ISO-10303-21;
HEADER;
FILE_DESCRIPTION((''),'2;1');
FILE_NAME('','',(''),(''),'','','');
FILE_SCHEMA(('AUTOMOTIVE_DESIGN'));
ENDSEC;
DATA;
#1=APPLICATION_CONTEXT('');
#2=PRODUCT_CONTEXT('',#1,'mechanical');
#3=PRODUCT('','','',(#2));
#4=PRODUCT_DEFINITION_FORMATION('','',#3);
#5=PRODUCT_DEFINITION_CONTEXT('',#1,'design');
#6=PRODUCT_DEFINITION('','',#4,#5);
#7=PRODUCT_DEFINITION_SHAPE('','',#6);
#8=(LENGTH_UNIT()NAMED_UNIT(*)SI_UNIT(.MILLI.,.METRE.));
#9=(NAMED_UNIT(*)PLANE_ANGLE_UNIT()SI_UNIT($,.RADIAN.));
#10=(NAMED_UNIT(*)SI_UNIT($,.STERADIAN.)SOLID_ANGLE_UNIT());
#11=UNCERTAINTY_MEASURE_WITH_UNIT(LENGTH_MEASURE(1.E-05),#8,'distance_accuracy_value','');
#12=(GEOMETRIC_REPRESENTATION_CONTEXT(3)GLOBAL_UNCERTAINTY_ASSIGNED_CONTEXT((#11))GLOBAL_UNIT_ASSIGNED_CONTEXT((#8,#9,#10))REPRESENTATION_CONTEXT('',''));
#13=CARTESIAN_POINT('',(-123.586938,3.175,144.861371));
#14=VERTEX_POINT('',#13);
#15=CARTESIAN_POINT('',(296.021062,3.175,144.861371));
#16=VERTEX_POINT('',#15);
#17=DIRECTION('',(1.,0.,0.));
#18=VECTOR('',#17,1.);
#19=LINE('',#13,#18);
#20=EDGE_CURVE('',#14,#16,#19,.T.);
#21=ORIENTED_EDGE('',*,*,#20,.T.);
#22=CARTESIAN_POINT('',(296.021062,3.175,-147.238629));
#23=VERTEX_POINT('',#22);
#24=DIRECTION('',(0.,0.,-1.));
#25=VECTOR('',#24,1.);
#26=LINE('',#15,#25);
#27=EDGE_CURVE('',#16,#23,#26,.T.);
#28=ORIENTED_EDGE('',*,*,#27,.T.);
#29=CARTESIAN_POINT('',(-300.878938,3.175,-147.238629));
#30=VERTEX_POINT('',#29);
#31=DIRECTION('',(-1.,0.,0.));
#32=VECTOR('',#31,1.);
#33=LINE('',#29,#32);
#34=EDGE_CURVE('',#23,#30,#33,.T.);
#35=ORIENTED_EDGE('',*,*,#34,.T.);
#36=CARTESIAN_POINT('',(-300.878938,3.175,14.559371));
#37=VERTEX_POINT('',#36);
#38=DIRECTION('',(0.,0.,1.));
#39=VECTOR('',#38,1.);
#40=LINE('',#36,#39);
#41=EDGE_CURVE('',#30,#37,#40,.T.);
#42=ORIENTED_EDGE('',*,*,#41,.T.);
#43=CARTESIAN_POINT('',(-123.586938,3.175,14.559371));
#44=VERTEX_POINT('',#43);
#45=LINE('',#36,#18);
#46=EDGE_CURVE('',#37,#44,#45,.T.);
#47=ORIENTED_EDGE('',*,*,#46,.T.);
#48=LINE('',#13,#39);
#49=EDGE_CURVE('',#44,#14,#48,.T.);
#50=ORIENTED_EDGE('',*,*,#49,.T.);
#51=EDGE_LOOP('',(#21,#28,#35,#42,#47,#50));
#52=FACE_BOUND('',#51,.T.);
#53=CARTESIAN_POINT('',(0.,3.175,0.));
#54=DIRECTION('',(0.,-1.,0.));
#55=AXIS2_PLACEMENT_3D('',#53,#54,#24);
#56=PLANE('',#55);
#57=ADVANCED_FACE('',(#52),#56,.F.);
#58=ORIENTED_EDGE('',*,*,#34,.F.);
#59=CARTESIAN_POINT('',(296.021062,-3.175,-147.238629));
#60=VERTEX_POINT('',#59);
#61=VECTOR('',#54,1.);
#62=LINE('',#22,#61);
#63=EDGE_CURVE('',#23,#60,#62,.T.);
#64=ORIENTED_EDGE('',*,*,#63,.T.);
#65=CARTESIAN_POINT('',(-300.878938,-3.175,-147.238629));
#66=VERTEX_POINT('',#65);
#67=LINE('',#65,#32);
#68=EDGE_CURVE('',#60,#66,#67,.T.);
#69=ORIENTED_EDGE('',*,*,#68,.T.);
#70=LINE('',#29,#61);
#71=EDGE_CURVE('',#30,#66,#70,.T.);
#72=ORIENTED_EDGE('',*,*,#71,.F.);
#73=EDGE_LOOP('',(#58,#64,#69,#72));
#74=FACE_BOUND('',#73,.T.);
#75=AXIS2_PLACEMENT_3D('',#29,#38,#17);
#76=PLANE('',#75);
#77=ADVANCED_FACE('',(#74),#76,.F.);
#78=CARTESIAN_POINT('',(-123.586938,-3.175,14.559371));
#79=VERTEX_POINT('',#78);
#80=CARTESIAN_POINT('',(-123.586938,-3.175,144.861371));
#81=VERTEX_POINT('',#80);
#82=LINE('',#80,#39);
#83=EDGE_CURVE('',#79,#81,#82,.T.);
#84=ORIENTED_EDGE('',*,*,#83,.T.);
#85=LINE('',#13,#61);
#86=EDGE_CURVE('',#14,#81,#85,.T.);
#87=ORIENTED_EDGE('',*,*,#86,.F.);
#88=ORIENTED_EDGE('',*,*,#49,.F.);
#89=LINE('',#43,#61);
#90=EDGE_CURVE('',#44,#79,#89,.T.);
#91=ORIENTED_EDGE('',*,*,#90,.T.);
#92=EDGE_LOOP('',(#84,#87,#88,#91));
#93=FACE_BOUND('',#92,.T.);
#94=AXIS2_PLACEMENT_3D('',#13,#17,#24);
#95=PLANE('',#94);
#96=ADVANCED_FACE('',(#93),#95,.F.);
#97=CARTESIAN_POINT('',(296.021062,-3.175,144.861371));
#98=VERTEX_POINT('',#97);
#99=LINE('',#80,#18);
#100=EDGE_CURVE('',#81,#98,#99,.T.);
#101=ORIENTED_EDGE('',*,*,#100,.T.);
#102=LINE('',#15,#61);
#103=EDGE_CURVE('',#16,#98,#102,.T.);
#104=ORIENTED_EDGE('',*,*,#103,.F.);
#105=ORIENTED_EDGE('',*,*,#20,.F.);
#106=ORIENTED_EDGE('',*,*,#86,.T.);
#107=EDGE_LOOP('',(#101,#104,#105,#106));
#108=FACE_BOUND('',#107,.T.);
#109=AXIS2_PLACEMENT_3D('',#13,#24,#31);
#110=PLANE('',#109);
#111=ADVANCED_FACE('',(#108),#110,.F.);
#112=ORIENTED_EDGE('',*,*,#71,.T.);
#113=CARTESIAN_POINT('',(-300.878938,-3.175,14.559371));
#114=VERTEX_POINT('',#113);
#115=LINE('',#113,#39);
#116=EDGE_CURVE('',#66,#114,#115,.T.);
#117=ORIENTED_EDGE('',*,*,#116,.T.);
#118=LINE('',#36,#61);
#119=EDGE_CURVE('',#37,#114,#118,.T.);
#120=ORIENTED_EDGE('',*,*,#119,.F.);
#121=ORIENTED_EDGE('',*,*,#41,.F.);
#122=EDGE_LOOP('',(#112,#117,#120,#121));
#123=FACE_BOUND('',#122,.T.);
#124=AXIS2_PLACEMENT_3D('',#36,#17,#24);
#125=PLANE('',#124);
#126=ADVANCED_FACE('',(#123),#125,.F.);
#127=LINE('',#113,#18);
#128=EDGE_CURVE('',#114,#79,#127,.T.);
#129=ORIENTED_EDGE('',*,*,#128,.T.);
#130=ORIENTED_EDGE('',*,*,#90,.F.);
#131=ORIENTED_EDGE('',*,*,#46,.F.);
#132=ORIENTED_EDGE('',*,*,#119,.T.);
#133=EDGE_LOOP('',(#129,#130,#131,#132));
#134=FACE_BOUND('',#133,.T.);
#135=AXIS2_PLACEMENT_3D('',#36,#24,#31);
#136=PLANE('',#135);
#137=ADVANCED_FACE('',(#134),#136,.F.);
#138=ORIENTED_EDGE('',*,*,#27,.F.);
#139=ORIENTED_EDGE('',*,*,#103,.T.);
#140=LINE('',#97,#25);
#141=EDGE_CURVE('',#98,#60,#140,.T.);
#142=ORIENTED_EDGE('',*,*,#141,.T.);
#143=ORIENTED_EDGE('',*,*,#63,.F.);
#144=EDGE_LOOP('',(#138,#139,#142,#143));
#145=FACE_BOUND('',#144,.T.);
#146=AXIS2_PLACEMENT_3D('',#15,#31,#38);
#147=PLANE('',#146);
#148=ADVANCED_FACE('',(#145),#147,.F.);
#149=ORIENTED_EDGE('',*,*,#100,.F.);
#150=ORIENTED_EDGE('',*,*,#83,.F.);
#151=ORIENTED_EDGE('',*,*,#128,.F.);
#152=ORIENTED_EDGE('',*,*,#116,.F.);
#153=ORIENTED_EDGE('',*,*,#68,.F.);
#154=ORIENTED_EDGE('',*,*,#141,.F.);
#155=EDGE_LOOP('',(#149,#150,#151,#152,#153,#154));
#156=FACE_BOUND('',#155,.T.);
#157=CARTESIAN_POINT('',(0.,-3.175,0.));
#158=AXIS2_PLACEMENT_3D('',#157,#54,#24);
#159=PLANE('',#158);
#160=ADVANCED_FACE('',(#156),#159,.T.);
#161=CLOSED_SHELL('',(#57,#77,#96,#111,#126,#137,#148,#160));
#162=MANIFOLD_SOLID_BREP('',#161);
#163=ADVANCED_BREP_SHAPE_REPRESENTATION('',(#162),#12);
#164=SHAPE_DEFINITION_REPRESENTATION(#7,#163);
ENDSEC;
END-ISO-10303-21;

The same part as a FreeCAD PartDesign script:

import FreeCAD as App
import Part
import Sketcher

V = App.Vector
Q = App.Units.Quantity


def add_polygon(sketch, points):
    """Adds a closed chain of lines whose ends are joined by coincident constraints."""
    first, n = sketch.GeometryCount, len(points)
    for a, b in zip(points, points[1:] + points[:1]):
        sketch.addGeometry(Part.LineSegment(App.Vector(*a, 0), App.Vector(*b, 0)), False)
    for i in range(n):
        sketch.addConstraint(Sketcher.Constraint("Coincident", first + i, 2, first + (i + 1) % n, 1))

doc = App.newDocument("Part")
body = doc.addObject("PartDesign::Body", "Body")

# Sketch on XZ plane
sketch1 = body.newObject("Sketcher::SketchObject", "Sketch")
sketch1.AttachmentSupport = (doc.getObject("XZ_Plane"), [""])
sketch1.MapMode = "FlatFace"
add_polygon(sketch1, [(-124, 145), (296, 145), (296, -147), (-301, -147), (-301, 15), (-124, 15)])  # lines 0-5
sketch1.addConstraint(Sketcher.Constraint("Horizontal", 0))
sketch1.addConstraint(Sketcher.Constraint("Vertical", 1))
sketch1.addConstraint(Sketcher.Constraint("Horizontal", 2))
sketch1.addConstraint(Sketcher.Constraint("Vertical", 3))
sketch1.addConstraint(Sketcher.Constraint("Horizontal", 4))
sketch1.addConstraint(Sketcher.Constraint("Vertical", 5))
sketch1.addConstraint(Sketcher.Constraint("DistanceX", 2, 2, 2, 1, Q("23.5 in")))
sketch1.addConstraint(Sketcher.Constraint("DistanceY", 1, 2, 1, 1, Q("11.5 in")))
sketch1.addConstraint(Sketcher.Constraint("DistanceX", 0, 1, 0, 2, Q("16.52 in")))
sketch1.addConstraint(Sketcher.Constraint("DistanceY", 3, 1, 3, 2, Q("6.37 in")))
sketch1.addConstraint(Sketcher.Constraint("DistanceX", -1, 1, 0, 2, Q("296.021062 mm")))
sketch1.addConstraint(Sketcher.Constraint("DistanceY", -1, 1, 0, 2, Q("144.861371 mm")))
pad1 = body.newObject("PartDesign::Pad", "Pad")
pad1.Profile = sketch1
pad1.Length = Q("0.25 in")
pad1.Midplane = True

doc.recompute()
